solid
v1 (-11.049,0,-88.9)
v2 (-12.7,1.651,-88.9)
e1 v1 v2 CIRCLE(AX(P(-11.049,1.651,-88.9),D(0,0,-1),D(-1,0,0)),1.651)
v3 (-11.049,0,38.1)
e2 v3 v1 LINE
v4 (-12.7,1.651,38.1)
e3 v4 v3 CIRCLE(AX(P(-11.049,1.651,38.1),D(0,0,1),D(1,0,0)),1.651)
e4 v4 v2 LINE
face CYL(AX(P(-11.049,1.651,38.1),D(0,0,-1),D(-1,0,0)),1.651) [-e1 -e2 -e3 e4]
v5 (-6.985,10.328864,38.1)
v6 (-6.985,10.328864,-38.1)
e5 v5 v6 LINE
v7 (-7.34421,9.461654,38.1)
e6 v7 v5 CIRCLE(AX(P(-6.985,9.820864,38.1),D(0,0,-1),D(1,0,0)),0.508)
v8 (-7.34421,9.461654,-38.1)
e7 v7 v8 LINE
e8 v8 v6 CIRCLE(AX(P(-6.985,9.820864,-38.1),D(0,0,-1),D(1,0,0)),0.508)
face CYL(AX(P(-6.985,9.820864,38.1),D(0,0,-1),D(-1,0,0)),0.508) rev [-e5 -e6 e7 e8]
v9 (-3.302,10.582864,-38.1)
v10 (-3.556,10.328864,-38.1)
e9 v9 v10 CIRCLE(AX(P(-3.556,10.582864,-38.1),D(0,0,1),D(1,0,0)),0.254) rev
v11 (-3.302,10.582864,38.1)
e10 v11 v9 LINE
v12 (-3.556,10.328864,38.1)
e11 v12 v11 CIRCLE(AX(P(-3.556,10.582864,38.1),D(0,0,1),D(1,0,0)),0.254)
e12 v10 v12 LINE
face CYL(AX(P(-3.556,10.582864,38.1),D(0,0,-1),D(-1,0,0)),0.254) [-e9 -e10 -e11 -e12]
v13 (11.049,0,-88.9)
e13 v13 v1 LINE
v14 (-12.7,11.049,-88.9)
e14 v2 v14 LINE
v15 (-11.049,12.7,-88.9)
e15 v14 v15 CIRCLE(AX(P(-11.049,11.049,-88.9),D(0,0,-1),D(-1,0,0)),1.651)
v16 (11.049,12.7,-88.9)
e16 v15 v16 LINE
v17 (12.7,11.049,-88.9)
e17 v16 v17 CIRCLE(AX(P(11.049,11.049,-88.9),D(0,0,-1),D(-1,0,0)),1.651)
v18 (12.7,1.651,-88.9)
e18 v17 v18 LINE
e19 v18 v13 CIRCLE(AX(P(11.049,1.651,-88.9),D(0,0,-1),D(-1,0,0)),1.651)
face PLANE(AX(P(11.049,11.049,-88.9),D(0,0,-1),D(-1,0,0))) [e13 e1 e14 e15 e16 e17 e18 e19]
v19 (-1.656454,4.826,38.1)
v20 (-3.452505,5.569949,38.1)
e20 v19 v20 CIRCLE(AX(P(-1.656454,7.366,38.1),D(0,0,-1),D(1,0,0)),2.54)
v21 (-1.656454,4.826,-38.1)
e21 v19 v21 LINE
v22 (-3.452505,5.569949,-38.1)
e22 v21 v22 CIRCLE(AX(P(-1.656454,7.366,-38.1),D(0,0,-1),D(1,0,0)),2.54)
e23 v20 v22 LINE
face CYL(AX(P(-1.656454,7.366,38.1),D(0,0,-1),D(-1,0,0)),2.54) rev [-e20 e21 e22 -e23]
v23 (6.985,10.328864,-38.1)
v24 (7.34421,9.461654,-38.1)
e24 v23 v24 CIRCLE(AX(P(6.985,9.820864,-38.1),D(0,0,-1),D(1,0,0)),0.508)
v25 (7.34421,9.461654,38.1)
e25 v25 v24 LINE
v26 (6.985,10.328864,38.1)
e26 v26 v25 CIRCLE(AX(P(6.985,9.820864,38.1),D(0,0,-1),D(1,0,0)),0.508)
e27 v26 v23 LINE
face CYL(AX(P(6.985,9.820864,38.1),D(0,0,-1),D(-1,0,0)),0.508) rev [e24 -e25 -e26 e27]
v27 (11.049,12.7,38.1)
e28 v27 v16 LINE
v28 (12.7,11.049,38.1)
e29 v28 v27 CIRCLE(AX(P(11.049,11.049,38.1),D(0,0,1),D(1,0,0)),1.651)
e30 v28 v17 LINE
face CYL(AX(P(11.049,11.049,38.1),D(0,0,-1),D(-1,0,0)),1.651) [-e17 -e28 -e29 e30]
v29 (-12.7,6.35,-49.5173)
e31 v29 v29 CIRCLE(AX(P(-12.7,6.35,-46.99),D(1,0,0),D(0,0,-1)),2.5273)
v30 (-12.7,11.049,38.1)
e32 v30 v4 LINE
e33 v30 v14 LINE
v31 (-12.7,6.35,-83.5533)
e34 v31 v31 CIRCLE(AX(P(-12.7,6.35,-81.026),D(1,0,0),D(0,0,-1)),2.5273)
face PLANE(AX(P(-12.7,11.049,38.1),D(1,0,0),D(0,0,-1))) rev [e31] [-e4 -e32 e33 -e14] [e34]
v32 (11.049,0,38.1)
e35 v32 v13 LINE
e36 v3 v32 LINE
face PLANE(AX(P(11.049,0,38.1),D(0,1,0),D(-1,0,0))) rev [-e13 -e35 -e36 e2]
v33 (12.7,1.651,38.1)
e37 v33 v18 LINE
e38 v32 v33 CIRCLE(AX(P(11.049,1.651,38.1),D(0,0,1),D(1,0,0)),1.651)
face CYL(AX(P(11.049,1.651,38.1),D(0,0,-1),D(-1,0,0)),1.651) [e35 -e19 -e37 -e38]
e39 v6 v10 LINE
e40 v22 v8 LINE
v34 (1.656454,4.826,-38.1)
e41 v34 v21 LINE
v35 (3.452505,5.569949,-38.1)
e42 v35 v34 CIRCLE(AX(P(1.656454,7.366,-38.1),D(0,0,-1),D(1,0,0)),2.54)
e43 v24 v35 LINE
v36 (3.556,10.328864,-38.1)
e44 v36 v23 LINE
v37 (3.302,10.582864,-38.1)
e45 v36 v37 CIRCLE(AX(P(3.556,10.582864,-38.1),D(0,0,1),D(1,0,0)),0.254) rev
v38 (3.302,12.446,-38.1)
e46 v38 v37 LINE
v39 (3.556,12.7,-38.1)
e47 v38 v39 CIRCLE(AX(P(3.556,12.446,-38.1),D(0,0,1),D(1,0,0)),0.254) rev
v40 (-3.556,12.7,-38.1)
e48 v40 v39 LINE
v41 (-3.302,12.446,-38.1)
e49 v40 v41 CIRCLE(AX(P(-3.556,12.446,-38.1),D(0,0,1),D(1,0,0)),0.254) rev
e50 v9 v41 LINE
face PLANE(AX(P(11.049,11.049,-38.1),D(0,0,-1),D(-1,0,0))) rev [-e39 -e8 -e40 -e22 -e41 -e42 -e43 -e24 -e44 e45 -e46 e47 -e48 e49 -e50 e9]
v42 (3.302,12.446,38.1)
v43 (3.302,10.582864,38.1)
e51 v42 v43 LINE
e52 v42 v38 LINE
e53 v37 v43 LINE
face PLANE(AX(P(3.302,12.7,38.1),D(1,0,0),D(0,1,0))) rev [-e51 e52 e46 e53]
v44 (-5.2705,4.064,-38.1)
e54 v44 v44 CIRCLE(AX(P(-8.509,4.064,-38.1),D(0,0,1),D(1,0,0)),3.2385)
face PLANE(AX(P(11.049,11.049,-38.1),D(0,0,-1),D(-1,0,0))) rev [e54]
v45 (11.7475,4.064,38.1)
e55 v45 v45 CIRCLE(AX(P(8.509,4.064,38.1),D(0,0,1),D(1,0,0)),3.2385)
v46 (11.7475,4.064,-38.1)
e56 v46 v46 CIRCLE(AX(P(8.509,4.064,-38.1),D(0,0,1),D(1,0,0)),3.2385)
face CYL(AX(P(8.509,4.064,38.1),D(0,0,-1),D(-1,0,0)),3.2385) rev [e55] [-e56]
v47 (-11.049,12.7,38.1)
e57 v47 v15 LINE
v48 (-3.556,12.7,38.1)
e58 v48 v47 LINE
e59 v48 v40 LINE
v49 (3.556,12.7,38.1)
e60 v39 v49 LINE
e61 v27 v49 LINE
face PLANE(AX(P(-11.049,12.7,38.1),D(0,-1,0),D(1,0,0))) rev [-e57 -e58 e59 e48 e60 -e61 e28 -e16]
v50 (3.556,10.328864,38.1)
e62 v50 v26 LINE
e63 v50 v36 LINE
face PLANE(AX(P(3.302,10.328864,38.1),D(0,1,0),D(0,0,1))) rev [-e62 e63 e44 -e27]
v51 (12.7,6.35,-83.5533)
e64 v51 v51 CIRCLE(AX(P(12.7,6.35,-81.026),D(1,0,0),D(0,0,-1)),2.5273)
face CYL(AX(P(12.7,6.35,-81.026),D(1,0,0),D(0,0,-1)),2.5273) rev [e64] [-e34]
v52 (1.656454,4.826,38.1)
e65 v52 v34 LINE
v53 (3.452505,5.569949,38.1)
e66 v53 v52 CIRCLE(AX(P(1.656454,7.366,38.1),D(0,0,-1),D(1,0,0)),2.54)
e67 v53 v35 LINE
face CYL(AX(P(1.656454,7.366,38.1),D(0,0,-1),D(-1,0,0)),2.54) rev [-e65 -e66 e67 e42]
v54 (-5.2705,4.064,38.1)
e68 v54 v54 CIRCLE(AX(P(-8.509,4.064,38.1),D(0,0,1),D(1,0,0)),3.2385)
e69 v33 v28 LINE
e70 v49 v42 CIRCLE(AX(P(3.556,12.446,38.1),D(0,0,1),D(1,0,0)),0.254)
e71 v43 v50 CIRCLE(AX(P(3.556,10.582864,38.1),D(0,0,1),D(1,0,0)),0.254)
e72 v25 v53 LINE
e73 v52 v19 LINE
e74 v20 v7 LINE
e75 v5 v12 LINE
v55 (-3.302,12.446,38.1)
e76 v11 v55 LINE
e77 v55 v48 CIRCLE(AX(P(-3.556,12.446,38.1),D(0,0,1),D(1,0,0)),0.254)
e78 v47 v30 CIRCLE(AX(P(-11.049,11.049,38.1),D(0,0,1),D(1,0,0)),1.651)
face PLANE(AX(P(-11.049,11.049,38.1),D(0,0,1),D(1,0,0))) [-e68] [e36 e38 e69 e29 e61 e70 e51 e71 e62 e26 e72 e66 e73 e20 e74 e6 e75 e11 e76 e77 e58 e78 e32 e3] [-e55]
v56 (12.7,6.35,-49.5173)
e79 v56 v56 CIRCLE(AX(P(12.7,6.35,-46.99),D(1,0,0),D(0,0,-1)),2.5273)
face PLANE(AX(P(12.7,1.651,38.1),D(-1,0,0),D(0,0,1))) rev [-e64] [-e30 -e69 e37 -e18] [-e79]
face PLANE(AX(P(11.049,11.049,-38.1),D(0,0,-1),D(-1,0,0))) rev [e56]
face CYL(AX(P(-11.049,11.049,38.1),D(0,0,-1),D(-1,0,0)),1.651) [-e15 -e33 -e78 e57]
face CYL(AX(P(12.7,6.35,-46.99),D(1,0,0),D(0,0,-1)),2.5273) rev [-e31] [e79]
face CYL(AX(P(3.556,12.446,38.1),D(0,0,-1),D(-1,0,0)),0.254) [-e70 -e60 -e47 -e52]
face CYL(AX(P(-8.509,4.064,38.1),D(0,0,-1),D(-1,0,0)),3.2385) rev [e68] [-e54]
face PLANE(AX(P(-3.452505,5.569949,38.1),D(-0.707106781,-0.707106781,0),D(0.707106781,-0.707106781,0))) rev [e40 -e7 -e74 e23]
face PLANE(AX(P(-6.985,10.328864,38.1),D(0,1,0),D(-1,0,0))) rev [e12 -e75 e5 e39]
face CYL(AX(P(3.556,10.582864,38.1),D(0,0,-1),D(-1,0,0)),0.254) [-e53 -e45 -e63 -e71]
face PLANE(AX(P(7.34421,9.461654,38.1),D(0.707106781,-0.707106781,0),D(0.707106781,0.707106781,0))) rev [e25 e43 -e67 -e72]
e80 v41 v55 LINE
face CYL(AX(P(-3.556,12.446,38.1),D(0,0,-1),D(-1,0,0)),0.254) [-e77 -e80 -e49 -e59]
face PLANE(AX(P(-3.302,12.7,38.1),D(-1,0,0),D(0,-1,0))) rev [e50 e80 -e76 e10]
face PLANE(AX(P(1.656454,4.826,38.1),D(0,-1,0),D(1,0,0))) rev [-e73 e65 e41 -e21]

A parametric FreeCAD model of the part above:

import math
import FreeCAD as App
import Part
import Sketcher
from FreeCAD import Vector
Q = App.Units.Quantity


def edges_at(feature, points):
    """Names of the edges that pass closest to the given points."""
    edges = feature.Shape.Edges
    near = lambda p: min(range(len(edges)), key=lambda i: edges[i].distToShape(Part.Vertex(*p))[0])
    return sorted({f"Edge{near(p) + 1}" for p in points})

doc = App.newDocument("Part")
body = doc.addObject("PartDesign::Body", "Body")

# Sketch on XY plane
sketch1 = body.newObject("Sketcher::SketchObject", "Sketch")
sketch1.AttachmentSupport = (doc.getObject("XY_Plane"), [""])
sketch1.MapMode = "FlatFace"
sketch1.addGeometry([
    Part.LineSegment(Vector(-3.3, 12.7, 0), Vector(-11, 12.7, 0)),  # 0
    Part.ArcOfCircle(Part.Circle(Vector(-11, 11, 0), Vector(0, 0, 1), 1.7), math.radians(90), math.radians(180)),  # 1
    Part.LineSegment(Vector(-12.7, 11, 0), Vector(-12.7, 1.7, 0)),  # 2
    Part.ArcOfCircle(Part.Circle(Vector(-11, 1.7, 0), Vector(0, 0, 1), 1.7), math.radians(180), math.radians(270)),  # 3
    Part.LineSegment(Vector(-11, 0, 0), Vector(11, 0, 0)),  # 4
    Part.ArcOfCircle(Part.Circle(Vector(11, 1.7, 0), Vector(0, 0, 1), 1.7), math.radians(-90), math.radians(0)),  # 5
    Part.LineSegment(Vector(12.7, 1.7, 0), Vector(12.7, 11, 0)),  # 6
    Part.ArcOfCircle(Part.Circle(Vector(11, 11, 0), Vector(0, 0, 1), 1.7), math.radians(0), math.radians(90)),  # 7
    Part.LineSegment(Vector(11, 12.7, 0), Vector(3.3, 12.7, 0)),  # 8
    Part.LineSegment(Vector(3.3, 12.7, 0), Vector(3.3, 10.3, 0)),  # 9
    Part.LineSegment(Vector(3.3, 10.3, 0), Vector(7, 10.3, 0)),  # 10
    Part.ArcOfCircle(Part.Circle(Vector(7, 9.8, 0), Vector(0, 0, 1), 0.5), math.radians(-45), math.radians(90)),  # 11
    Part.LineSegment(Vector(7.3, 9.5, 0), Vector(3.5, 5.6, 0)),  # 12
    Part.ArcOfCircle(Part.Circle(Vector(1.7, 7.4, 0), Vector(0, 0, 1), 2.5), math.radians(-90), math.radians(-45)),  # 13
    Part.LineSegment(Vector(1.7, 4.8, 0), Vector(-1.7, 4.8, 0)),  # 14
    Part.ArcOfCircle(Part.Circle(Vector(-1.7, 7.4, 0), Vector(0, 0, 1), 2.5), math.radians(-135), math.radians(-90)),  # 15
    Part.LineSegment(Vector(-3.5, 5.6, 0), Vector(-7.3, 9.5, 0)),  # 16
    Part.ArcOfCircle(Part.Circle(Vector(-7, 9.8, 0), Vector(0, 0, 1), 0.5), math.radians(90), math.radians(225)),  # 17
    Part.LineSegment(Vector(-7, 10.3, 0), Vector(-3.3, 10.3, 0)),  # 18
    Part.LineSegment(Vector(-3.3, 10.3, 0), Vector(-3.3, 12.7, 0)),  # 19
    Part.Circle(Vector(8.5, 4.1, 0), Vector(0, 0, 1), 3.2),  # 20
    Part.Circle(Vector(-8.5, 4.1, 0), Vector(0, 0, 1), 3.2),  # 21
], False)
sketch1.addConstraint([
    Sketcher.Constraint("Tangent", 0, 2, 1, 1),
    Sketcher.Constraint("Tangent", 1, 2, 2, 1),
    Sketcher.Constraint("Tangent", 2, 2, 3, 1),
    Sketcher.Constraint("Tangent", 3, 2, 4, 1),
    Sketcher.Constraint("Tangent", 4, 2, 5, 1),
    Sketcher.Constraint("Tangent", 5, 2, 6, 1),
    Sketcher.Constraint("Tangent", 6, 2, 7, 1),
    Sketcher.Constraint("Tangent", 7, 2, 8, 1),
    Sketcher.Constraint("Coincident", 8, 2, 9, 1),
    Sketcher.Constraint("Coincident", 9, 2, 10, 1),
    Sketcher.Constraint("Tangent", 10, 2, 11, 2),
    Sketcher.Constraint("Tangent", 11, 1, 12, 1),
    Sketcher.Constraint("Tangent", 12, 2, 13, 2),
    Sketcher.Constraint("Tangent", 13, 1, 14, 1),
    Sketcher.Constraint("Tangent", 14, 2, 15, 2),
    Sketcher.Constraint("Tangent", 15, 1, 16, 1),
    Sketcher.Constraint("Tangent", 16, 2, 17, 2),
    Sketcher.Constraint("Tangent", 17, 1, 18, 1),
    Sketcher.Constraint("Coincident", 18, 2, 19, 1),
    Sketcher.Constraint("Coincident", 19, 2, 0, 1),
    Sketcher.Constraint("Horizontal", 0),
    Sketcher.Constraint("Vertical", 2),
    Sketcher.Constraint("Horizontal", 4),
    Sketcher.Constraint("Vertical", 6),
    Sketcher.Constraint("Horizontal", 8),
    Sketcher.Constraint("Vertical", 9),
    Sketcher.Constraint("Horizontal", 10),
    Sketcher.Constraint("Horizontal", 14),
    Sketcher.Constraint("Horizontal", 18),
    Sketcher.Constraint("Vertical", 19),
    Sketcher.Constraint("Equal", 1, 3),
    Sketcher.Constraint("Equal", 3, 5),
    Sketcher.Constraint("Equal", 5, 7),
    Sketcher.Constraint("Equal", 13, 15),
    Sketcher.Constraint("Equal", 11, 17),
    Sketcher.Constraint("Equal", 20, 21),
    Sketcher.Constraint("Symmetric", 3, 2, 4, 2, -1, 1),
    Sketcher.Constraint("Symmetric", 11, 3, 17, 3, -2),
    Sketcher.Constraint("Symmetric", 20, 3, 21, 3, -2),
    Sketcher.Constraint("Symmetric", 8, 2, 19, 2, -2),
    Sketcher.Constraint("Perpendicular", 12, 16),
    Sketcher.Constraint("Horizontal", 12, 2, 15, 1),
    Sketcher.Constraint("Radius", 13, Q("0.1 in")),
    Sketcher.Constraint("Radius", 11, Q("0.02 in")),
    Sketcher.Constraint("Diameter", 20, Q("0.255 in")),
    Sketcher.Constraint("Radius", 1, Q("0.065 in")),
    Sketcher.Constraint("DistanceX", 4, 1, 4, 2, Q("0.87 in")),
    Sketcher.Constraint("DistanceY", 2, 2, 2, 1, Q("0.37 in")),
    Sketcher.Constraint("DistanceX", 20, 3, 5, 3, Q("0.1 in")),
    Sketcher.Constraint("DistanceX", 0, 2, 0, 1, Q("0.305 in")),
    Sketcher.Constraint("DistanceX", 10, 1, 10, 2, Q("0.145 in")),
    Sketcher.Constraint("DistanceY", -1, 1, 13, 3, Q("0.29 in")),
    Sketcher.Constraint("DistanceY", -1, 1, 20, 3, Q("0.16 in")),
    Sketcher.Constraint("Distance", 12, 5.503702),
])
pad1 = body.newObject("PartDesign::Pad", "Pad")
pad1.Profile = sketch1
pad1.Length = Q("3 in")
pad1.Midplane = True
doc.recompute()

fillet = body.newObject("PartDesign::Fillet", "Fillet")
fillet.Base = (pad1, edges_at(pad1, [
    (-3.302, 12.7, 0),
    (-3.302, 10.329, 0),
    (3.302, 10.329, 0),
    (3.302, 12.7, 0),
]))
fillet.Radius = Q("0.01 in")

# Sketch on XY plane
sketch2 = body.newObject("Sketcher::SketchObject", "Sketch001")
sketch2.AttachmentSupport = (doc.getObject("XY_Plane"), [""])
sketch2.MapMode = "FlatFace"
sketch2.AttachmentOffset = App.Placement(Vector(0, 0, -1.5 * 25.4), App.Rotation())
sketch2.addGeometry([
    Part.ArcOfCircle(Part.Circle(Vector(11, 11, 0), Vector(0, 0, 1), 1.7), math.radians(0), math.radians(90)),  # 0
    Part.LineSegment(Vector(12.7, 11, 0), Vector(12.7, 1.7, 0)),  # 1
    Part.ArcOfCircle(Part.Circle(Vector(11, 1.7, 0), Vector(0, 0, 1), 1.7), math.radians(-90), math.radians(0)),  # 2
    Part.LineSegment(Vector(11, 0, 0), Vector(-11, 0, 0)),  # 3
    Part.ArcOfCircle(Part.Circle(Vector(-11, 1.7, 0), Vector(0, 0, 1), 1.7), math.radians(180), math.radians(270)),  # 4
    Part.LineSegment(Vector(-12.7, 1.7, 0), Vector(-12.7, 11, 0)),  # 5
    Part.ArcOfCircle(Part.Circle(Vector(-11, 11, 0), Vector(0, 0, 1), 1.7), math.radians(90), math.radians(180)),  # 6
    Part.LineSegment(Vector(-11, 12.7, 0), Vector(11, 12.7, 0)),  # 7
], False)
sketch2.addConstraint([
    Sketcher.Constraint("Tangent", 0, 1, 1, 1),
    Sketcher.Constraint("Tangent", 1, 2, 2, 2),
    Sketcher.Constraint("Tangent", 2, 1, 3, 1),
    Sketcher.Constraint("Tangent", 3, 2, 4, 2),
    Sketcher.Constraint("Tangent", 4, 1, 5, 1),
    Sketcher.Constraint("Tangent", 5, 2, 6, 2),
    Sketcher.Constraint("Tangent", 6, 1, 7, 1),
    Sketcher.Constraint("Tangent", 7, 2, 0, 2),
    Sketcher.Constraint("Vertical", 1),
    Sketcher.Constraint("Horizontal", 3),
    Sketcher.Constraint("Vertical", 5),
    Sketcher.Constraint("Horizontal", 7),
    Sketcher.Constraint("Equal", 0, 2),
    Sketcher.Constraint("Equal", 2, 4),
    Sketcher.Constraint("Equal", 4, 6),
    Sketcher.Constraint("Symmetric", 2, 1, 3, 2, -1, 1),
    Sketcher.Constraint("Radius", 0, Q("0.065 in")),
    Sketcher.Constraint("DistanceX", 3, 2, 3, 1, Q("0.87 in")),
    Sketcher.Constraint("DistanceY", 1, 2, 1, 1, Q("0.37 in")),
])
pad2 = body.newObject("PartDesign::Pad", "Pad001")
pad2.Profile = sketch2
pad2.Length = Q("2 in")
pad2.Reversed = True

# Sketch on YZ plane
sketch3 = body.newObject("Sketcher::SketchObject", "Sketch002")
sketch3.AttachmentSupport = (doc.getObject("YZ_Plane"), [""])
sketch3.MapMode = "FlatFace"
sketch3.AttachmentOffset = App.Placement(Vector(0, 0, 0.5 * 25.4), App.Rotation())
sketch3.addGeometry(Part.Circle(Vector(6.3, -81, 0), Vector(0, 0, 1), 2.5), False)
sketch3.addConstraint([
    Sketcher.Constraint("Diameter", 0, Q("0.199 in")),
    Sketcher.Constraint("DistanceX", -1, 1, 0, 3, Q("0.25 in")),
    Sketcher.Constraint("DistanceY", 0, 3, -1, 1, Q("3.19 in")),
])
doc.recompute()
hole = body.newObject("PartDesign::Hole", "Hole")
hole.Profile = sketch3
hole.ThreadType = "None"
hole.Diameter = Q("0.199 in")
hole.DepthType = "ThroughAll"
doc.recompute()

linearpattern = body.newObject("PartDesign::LinearPattern", "LinearPattern")
linearpattern.Originals = [hole]
linearpattern.Direction = (doc.getObject("Z_Axis"), [""])
linearpattern.Mode = "offset"
linearpattern.Offset = Q("1.34 in")
linearpattern.Occurrences = 2
body.Tip = linearpattern

doc.recompute()
